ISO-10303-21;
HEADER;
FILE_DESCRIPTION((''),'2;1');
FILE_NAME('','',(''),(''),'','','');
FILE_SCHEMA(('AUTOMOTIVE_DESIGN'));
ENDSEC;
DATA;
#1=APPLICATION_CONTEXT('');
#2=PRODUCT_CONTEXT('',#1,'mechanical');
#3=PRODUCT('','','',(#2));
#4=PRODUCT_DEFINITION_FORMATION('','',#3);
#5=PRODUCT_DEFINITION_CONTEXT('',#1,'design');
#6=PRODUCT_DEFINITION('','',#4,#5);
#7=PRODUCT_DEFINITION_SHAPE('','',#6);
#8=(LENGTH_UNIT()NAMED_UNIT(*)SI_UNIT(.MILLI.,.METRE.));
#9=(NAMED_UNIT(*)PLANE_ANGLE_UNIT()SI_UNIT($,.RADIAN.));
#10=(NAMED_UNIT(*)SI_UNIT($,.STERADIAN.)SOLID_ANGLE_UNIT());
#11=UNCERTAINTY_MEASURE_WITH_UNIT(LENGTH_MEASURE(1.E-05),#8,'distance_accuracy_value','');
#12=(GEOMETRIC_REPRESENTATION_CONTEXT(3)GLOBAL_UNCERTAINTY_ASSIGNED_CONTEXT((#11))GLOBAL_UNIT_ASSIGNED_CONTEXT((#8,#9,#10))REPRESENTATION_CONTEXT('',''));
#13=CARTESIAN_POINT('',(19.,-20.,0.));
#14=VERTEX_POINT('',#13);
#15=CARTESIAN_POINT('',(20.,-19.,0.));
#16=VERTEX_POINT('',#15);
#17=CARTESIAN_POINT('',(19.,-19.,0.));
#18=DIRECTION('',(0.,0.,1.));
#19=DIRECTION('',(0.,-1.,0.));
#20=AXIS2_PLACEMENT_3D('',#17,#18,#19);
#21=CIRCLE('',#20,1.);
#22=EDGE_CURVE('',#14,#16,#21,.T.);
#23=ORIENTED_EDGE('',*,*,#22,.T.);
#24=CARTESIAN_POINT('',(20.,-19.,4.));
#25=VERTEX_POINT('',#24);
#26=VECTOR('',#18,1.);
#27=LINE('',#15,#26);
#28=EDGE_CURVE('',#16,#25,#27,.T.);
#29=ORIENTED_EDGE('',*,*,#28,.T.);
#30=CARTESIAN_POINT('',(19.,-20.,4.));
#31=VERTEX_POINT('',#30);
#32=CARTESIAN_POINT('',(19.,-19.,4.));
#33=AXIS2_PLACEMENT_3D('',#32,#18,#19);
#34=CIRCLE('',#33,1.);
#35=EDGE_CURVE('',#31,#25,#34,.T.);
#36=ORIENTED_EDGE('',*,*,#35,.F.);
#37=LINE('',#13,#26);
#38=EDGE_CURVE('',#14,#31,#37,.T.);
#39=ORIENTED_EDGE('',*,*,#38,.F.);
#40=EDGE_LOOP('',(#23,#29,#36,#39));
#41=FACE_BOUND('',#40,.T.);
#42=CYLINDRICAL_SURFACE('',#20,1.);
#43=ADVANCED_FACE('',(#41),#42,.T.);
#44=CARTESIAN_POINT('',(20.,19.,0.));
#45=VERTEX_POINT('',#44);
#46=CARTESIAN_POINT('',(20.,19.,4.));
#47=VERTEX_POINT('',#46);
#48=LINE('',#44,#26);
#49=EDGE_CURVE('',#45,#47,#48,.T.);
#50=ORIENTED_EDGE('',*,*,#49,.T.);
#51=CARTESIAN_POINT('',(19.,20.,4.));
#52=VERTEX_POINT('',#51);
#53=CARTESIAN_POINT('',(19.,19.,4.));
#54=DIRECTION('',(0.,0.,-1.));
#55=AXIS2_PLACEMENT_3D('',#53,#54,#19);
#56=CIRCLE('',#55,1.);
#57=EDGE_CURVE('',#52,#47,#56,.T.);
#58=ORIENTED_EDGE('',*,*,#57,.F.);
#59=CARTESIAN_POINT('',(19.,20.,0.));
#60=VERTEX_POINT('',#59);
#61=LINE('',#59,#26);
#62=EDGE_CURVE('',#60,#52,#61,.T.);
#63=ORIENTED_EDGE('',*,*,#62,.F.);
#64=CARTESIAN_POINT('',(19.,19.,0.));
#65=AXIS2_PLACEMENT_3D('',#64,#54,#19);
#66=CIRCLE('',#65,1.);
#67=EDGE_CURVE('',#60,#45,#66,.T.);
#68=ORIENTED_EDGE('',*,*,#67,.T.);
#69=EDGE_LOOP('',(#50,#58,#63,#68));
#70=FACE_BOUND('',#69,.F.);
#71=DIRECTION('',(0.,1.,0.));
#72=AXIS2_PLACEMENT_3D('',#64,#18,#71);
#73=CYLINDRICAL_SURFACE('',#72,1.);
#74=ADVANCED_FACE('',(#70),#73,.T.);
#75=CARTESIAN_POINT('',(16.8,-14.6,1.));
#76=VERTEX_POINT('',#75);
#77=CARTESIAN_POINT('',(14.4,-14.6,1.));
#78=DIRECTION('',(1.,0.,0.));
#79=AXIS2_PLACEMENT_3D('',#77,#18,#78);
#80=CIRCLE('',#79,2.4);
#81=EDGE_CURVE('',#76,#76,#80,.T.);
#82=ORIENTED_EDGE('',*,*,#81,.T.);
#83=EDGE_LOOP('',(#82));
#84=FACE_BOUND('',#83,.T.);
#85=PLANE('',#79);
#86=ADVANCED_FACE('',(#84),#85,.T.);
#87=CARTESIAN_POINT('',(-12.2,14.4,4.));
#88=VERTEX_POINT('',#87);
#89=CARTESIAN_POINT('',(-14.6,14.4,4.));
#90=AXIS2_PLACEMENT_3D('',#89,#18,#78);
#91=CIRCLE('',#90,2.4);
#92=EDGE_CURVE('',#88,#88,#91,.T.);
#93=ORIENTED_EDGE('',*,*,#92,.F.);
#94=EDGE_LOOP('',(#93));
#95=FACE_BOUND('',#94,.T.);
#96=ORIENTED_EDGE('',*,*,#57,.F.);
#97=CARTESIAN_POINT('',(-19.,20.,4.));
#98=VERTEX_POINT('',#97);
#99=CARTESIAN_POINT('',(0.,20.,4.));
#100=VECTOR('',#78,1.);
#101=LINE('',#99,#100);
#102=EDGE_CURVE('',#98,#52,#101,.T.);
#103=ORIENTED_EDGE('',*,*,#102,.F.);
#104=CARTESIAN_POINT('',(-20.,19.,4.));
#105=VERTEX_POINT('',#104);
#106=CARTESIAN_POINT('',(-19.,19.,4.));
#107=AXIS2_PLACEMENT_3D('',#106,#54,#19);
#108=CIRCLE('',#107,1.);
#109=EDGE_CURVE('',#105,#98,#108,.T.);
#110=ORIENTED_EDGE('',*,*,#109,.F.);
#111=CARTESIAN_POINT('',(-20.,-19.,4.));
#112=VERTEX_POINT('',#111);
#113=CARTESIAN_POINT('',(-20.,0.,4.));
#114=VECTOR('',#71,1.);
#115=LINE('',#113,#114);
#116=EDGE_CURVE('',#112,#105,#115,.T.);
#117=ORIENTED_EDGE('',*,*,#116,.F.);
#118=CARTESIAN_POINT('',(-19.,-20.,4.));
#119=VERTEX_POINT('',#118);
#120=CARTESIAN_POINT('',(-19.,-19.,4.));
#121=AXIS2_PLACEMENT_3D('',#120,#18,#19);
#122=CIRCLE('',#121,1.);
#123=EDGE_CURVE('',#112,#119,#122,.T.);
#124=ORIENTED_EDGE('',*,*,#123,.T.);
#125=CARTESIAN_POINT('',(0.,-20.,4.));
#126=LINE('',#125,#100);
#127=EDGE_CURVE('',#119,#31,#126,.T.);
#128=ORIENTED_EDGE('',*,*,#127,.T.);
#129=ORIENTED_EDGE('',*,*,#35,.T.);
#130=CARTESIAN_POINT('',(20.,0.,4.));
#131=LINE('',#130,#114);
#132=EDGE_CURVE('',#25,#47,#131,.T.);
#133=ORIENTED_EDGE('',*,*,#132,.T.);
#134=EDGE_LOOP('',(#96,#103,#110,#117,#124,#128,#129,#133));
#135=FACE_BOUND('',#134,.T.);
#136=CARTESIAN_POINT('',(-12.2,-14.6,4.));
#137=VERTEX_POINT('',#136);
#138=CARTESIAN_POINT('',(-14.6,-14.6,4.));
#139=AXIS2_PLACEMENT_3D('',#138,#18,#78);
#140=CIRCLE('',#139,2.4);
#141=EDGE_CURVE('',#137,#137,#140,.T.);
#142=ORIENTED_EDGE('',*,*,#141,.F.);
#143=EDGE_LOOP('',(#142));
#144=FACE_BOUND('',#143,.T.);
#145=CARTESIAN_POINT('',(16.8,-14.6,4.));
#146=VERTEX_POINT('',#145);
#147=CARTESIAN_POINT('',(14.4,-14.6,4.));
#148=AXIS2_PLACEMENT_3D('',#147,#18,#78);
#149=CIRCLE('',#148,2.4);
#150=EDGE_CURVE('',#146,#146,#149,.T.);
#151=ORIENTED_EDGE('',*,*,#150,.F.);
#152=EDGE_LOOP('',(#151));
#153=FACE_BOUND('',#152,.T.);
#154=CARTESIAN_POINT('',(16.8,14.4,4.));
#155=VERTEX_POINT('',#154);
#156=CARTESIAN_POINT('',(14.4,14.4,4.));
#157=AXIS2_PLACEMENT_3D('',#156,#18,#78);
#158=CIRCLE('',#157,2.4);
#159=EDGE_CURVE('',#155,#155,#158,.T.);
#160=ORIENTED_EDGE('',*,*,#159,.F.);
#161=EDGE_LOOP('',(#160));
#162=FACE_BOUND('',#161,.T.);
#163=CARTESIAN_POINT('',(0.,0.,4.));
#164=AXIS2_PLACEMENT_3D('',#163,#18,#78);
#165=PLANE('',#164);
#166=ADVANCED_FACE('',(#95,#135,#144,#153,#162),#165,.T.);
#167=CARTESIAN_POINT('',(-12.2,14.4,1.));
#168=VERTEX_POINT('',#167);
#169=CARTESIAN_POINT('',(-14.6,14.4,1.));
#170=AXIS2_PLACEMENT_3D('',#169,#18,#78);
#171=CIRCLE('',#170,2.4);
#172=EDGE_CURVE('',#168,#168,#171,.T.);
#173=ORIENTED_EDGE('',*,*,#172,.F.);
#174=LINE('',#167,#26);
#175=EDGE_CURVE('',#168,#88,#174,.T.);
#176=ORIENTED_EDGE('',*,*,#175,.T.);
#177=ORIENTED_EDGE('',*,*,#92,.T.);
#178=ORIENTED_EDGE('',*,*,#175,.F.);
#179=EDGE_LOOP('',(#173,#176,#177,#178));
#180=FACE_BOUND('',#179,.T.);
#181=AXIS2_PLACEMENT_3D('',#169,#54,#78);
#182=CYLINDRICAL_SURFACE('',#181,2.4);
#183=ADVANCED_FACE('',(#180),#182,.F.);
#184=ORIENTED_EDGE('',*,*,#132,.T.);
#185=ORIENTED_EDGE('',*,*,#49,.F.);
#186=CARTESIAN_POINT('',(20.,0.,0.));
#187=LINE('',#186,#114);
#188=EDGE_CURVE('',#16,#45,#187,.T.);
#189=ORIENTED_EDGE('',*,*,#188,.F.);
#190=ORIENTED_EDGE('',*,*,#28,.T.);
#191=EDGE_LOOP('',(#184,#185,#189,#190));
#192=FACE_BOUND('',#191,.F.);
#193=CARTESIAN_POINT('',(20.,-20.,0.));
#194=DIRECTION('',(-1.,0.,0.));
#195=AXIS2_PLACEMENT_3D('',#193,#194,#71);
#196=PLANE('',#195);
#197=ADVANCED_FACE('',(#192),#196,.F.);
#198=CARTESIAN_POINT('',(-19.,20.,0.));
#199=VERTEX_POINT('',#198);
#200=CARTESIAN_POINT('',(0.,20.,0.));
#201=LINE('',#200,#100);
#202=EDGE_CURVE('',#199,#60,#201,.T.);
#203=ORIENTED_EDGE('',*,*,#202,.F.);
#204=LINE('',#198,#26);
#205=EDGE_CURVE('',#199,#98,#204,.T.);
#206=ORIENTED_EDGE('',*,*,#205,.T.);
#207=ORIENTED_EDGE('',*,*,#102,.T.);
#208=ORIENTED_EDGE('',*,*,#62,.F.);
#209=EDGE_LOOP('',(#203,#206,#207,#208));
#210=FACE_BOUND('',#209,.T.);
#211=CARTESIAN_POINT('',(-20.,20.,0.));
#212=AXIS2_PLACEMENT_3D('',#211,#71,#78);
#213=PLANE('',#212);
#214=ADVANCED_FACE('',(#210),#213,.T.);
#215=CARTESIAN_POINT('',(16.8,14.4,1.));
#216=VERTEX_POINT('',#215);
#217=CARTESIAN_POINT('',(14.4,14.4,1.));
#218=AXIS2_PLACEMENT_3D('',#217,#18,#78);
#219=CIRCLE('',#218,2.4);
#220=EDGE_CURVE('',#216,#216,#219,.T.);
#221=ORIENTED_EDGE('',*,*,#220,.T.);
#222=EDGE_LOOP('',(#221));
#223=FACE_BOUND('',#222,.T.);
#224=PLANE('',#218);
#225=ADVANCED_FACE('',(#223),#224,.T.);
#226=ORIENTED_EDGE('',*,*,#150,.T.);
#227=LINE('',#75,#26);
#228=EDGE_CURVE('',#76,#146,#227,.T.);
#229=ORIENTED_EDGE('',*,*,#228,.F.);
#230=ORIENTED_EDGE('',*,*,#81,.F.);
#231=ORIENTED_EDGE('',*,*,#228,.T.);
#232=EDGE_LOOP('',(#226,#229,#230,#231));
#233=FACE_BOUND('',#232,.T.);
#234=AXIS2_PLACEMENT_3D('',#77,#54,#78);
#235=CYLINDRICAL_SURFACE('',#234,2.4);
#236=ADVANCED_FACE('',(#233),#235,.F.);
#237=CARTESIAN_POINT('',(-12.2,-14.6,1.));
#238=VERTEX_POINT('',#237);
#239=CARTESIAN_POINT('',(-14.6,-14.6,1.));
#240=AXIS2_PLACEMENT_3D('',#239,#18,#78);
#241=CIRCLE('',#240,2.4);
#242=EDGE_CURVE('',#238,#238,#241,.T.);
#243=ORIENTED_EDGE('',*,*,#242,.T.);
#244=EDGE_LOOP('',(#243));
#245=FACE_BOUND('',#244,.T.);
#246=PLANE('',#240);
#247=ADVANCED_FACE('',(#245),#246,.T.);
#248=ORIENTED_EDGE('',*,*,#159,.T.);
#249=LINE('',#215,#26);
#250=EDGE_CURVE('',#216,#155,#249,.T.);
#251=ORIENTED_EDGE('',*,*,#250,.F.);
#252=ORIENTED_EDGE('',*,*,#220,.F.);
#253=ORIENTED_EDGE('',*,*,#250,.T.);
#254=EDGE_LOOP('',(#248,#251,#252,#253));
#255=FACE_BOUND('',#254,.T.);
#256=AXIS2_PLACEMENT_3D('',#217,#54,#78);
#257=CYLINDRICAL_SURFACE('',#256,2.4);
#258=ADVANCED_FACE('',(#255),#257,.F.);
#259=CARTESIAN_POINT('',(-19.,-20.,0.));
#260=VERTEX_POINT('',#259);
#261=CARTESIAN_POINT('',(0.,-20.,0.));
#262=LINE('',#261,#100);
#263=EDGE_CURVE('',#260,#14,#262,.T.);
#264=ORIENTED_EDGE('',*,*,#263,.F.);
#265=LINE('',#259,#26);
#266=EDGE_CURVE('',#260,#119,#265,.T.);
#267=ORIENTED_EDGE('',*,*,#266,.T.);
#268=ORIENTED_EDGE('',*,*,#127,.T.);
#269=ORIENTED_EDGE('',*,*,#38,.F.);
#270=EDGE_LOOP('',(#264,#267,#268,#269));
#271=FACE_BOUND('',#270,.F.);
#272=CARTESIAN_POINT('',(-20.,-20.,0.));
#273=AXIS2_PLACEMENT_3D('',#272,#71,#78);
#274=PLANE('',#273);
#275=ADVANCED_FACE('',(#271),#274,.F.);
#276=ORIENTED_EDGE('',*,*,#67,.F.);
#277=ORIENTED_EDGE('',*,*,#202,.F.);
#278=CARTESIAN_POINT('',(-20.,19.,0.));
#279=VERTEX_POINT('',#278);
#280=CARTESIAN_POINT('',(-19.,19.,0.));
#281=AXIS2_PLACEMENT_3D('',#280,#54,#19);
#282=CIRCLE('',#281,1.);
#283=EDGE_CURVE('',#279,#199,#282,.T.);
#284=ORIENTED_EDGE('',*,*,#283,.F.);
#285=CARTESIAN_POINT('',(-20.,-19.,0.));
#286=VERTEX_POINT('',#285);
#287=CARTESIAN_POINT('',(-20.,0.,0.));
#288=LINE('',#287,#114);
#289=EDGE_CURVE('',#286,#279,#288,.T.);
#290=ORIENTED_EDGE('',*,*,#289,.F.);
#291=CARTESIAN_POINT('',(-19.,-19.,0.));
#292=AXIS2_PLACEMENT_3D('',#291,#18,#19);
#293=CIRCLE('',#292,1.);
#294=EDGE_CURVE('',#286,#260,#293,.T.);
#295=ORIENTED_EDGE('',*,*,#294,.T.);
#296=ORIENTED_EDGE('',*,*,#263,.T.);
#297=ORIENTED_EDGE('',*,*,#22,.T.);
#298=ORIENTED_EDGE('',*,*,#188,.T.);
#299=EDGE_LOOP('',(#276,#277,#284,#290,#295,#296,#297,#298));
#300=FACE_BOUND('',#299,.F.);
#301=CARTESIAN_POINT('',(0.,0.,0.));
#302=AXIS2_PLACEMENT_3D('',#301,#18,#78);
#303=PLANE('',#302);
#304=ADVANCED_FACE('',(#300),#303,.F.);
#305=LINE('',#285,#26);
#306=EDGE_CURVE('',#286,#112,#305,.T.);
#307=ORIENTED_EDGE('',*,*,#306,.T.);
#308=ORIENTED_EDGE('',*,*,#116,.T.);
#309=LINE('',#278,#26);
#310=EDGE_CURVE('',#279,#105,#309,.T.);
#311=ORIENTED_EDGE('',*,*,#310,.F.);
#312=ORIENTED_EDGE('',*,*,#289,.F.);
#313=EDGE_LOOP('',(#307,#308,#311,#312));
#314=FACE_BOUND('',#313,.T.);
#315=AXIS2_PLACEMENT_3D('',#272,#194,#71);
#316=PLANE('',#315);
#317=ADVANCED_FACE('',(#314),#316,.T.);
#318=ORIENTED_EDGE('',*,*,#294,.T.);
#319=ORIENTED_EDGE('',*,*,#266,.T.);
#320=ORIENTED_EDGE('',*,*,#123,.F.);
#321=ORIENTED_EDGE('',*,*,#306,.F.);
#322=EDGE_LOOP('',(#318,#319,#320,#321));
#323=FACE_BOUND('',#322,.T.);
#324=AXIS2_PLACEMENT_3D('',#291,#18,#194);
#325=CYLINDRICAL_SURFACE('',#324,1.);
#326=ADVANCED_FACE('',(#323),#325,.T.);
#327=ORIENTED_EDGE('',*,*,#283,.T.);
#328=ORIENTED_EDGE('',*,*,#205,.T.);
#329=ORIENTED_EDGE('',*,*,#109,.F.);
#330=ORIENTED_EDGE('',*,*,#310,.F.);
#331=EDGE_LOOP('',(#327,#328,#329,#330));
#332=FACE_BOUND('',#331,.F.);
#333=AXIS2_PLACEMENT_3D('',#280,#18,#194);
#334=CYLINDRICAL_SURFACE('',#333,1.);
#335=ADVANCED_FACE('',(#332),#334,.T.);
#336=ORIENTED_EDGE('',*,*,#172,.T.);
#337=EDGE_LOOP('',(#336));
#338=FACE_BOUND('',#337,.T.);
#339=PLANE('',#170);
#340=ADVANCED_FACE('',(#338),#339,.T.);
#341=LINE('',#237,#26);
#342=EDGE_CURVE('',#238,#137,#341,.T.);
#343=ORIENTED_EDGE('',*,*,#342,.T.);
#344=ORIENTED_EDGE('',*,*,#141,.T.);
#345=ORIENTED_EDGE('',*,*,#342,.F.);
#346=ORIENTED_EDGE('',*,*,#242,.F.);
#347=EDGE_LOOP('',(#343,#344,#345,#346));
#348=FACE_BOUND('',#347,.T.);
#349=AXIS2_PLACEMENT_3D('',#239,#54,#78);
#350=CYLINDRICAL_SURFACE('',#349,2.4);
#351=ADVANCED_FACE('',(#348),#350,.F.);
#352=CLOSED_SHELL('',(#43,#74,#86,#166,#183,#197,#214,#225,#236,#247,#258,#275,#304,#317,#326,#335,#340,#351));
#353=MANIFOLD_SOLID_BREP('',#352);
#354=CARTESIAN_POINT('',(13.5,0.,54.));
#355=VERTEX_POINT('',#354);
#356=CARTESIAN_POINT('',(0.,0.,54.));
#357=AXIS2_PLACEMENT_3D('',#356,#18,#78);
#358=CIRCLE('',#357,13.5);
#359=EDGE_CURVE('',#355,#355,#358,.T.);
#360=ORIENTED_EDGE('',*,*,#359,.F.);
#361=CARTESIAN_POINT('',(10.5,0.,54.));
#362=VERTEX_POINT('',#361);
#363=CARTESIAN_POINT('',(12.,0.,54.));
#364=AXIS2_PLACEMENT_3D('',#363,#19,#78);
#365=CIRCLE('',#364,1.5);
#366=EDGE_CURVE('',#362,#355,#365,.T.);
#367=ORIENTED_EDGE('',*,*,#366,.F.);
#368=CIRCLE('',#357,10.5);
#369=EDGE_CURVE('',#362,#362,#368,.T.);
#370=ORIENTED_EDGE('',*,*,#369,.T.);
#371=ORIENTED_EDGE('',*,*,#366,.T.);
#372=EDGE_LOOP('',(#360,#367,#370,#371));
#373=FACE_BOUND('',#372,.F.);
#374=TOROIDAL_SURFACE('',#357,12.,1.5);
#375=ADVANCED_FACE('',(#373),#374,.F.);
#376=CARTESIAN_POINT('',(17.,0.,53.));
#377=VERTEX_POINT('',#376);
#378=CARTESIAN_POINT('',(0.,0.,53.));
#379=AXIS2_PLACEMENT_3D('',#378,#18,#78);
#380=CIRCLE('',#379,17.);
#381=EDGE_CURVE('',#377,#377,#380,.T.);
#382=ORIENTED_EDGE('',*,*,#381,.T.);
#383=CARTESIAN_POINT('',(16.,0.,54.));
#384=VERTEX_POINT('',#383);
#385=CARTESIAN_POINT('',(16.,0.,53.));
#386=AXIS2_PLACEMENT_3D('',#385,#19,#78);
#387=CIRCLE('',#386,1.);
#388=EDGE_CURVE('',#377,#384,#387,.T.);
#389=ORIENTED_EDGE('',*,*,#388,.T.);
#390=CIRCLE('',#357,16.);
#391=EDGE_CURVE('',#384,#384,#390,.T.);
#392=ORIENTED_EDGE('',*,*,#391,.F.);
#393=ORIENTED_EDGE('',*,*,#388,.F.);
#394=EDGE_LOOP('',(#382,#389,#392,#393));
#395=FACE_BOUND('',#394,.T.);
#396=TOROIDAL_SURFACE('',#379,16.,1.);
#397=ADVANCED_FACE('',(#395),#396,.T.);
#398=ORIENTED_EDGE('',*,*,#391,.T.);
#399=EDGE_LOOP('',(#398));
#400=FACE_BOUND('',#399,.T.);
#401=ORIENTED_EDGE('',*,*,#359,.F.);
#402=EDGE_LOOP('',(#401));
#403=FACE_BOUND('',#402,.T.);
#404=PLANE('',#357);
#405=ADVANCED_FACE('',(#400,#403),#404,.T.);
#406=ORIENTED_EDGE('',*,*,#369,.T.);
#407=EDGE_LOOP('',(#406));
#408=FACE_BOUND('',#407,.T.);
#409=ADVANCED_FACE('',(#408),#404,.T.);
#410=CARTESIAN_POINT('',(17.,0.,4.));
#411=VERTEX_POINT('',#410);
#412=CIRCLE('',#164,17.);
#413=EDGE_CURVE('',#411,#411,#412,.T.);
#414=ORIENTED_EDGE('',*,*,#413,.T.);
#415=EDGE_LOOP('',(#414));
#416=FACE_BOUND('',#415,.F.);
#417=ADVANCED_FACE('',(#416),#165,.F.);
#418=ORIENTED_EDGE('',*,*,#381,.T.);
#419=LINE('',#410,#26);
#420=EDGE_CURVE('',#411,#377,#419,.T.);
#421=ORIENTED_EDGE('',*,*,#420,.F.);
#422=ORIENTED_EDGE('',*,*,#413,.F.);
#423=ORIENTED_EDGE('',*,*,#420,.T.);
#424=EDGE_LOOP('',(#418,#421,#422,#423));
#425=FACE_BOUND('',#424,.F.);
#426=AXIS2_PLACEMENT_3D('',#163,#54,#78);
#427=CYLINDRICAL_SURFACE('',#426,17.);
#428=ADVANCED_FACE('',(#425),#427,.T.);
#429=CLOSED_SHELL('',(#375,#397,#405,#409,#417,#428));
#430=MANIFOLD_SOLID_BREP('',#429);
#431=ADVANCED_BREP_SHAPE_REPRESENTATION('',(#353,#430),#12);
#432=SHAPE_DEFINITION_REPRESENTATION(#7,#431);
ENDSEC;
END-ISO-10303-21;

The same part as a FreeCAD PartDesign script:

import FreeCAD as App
import Part
import Sketcher


def edges_at(feature, points):
    """Names of the edges that pass closest to the given points."""
    edges = feature.Shape.Edges
    near = lambda p: min(range(len(edges)), key=lambda i: edges[i].distToShape(Part.Vertex(*p))[0])
    return sorted({f"Edge{near(p) + 1}" for p in points})


def add_polygon(sketch, points):
    """Adds a closed chain of lines whose ends are joined by coincident constraints."""
    first, n = sketch.GeometryCount, len(points)
    for a, b in zip(points, points[1:] + points[:1]):
        sketch.addGeometry(Part.LineSegment(App.Vector(*a, 0), App.Vector(*b, 0)), False)
    for i in range(n):
        sketch.addConstraint(Sketcher.Constraint("Coincident", first + i, 2, first + (i + 1) % n, 1))

doc = App.newDocument("Part")
body = doc.addObject("PartDesign::Body", "Body")

# Sketch on XZ plane
sketch1 = body.newObject("Sketcher::SketchObject", "Sketch")
sketch1.AttachmentSupport = (doc.getObject("XZ_Plane"), [""])
sketch1.MapMode = "FlatFace"
sketch1.addGeometry(Part.Circle(App.Vector(12, 54, 0), App.Vector(0, 0, 1), 1.5), False)
sketch1.addConstraint([
    Sketcher.Constraint("Diameter", 0, 3.0),
    Sketcher.Constraint("DistanceX", -1, 1, 0, 3, 12.0),
    Sketcher.Constraint("DistanceY", -1, 1, 0, 3, 54.0),
])
revolution = body.newObject("PartDesign::Revolution", "Revolution")
revolution.Profile = sketch1
revolution.ReferenceAxis = (sketch1, ["V_Axis"])
revolution.Angle = 360
body2 = doc.addObject("PartDesign::Body", "Body001")

# Sketch on XY plane
sketch2 = body2.newObject("Sketcher::SketchObject", "Sketch001")
sketch2.AttachmentSupport = (doc.getObject("XY_Plane001"), [""])
sketch2.MapMode = "FlatFace"
sketch2.AttachmentOffset = App.Placement(App.Vector(0, 0, 4), App.Rotation())
sketch2.addGeometry(Part.Circle(App.Vector(0, 0, 0), App.Vector(0, 0, 1), 17), False)
sketch2.addConstraint([
    Sketcher.Constraint("Coincident", 0, 3, -1, 1),
    Sketcher.Constraint("Diameter", 0, 34.0),
])
pad1 = body2.newObject("PartDesign::Pad", "Pad")
pad1.Profile = sketch2
pad1.Length = 50
doc.recompute()

boolean = body2.newObject("PartDesign::Boolean", "Boolean")
boolean.Type = "Cut"
boolean.addObjects([body])
doc.recompute()

fillet = body2.newObject("PartDesign::Fillet", "Fillet")
fillet.Base = (boolean, edges_at(boolean, [(-17, 0, 54)]))
fillet.Radius = 1
body3 = doc.addObject("PartDesign::Body", "Body002")

# Sketch on XY plane
sketch3 = body3.newObject("Sketcher::SketchObject", "Sketch002")
sketch3.AttachmentSupport = (doc.getObject("XY_Plane002"), [""])
sketch3.MapMode = "FlatFace"
sketch3.AttachmentOffset = App.Placement(App.Vector(0, 0, 1), App.Rotation())
sketch3.addGeometry(Part.Circle(App.Vector(34.4, 5.4, 0), App.Vector(0, 0, 1), 2.4), False)
sketch3.addConstraint([
    Sketcher.Constraint("Diameter", 0, 4.8),
    Sketcher.Constraint("DistanceX", -1, 1, 0, 3, 34.4),
    Sketcher.Constraint("DistanceY", -1, 1, 0, 3, 5.4),
])
pad2 = body3.newObject("PartDesign::Pad", "Pad001")
pad2.Profile = sketch3
pad2.Length = 3
body4 = doc.addObject("PartDesign::Body", "Body003")

# Sketch on XY plane
sketch4 = body4.newObject("Sketcher::SketchObject", "Sketch003")
sketch4.AttachmentSupport = (doc.getObject("XY_Plane003"), [""])
sketch4.MapMode = "FlatFace"
sketch4.AttachmentOffset = App.Placement(App.Vector(0, 0, 1), App.Rotation())
sketch4.addGeometry(Part.Circle(App.Vector(34.4, 34.4, 0), App.Vector(0, 0, 1), 2.4), False)
sketch4.addConstraint([
    Sketcher.Constraint("Diameter", 0, 4.8),
    Sketcher.Constraint("DistanceX", -1, 1, 0, 3, 34.4),
    Sketcher.Constraint("DistanceY", -1, 1, 0, 3, 34.4),
])
pad3 = body4.newObject("PartDesign::Pad", "Pad002")
pad3.Profile = sketch4
pad3.Length = 3
body5 = doc.addObject("PartDesign::Body", "Body004")

# Sketch on XY plane
sketch5 = body5.newObject("Sketcher::SketchObject", "Sketch004")
sketch5.AttachmentSupport = (doc.getObject("XY_Plane004"), [""])
sketch5.MapMode = "FlatFace"
sketch5.AttachmentOffset = App.Placement(App.Vector(0, 0, 1), App.Rotation())
sketch5.addGeometry(Part.Circle(App.Vector(5.4, 34.4, 0), App.Vector(0, 0, 1), 2.4), False)
sketch5.addConstraint([
    Sketcher.Constraint("Diameter", 0, 4.8),
    Sketcher.Constraint("DistanceX", -1, 1, 0, 3, 5.4),
    Sketcher.Constraint("DistanceY", -1, 1, 0, 3, 34.4),
])
pad4 = body5.newObject("PartDesign::Pad", "Pad003")
pad4.Profile = sketch5
pad4.Length = 3
body6 = doc.addObject("PartDesign::Body", "Body005")
body6.AllowCompound = True

# Sketch on XY plane
sketch6 = body6.newObject("Sketcher::SketchObject", "Sketch005")
sketch6.AttachmentSupport = (doc.getObject("XY_Plane005"), [""])
sketch6.MapMode = "FlatFace"
sketch6.AttachmentOffset = App.Placement(App.Vector(0, 0, 1), App.Rotation())
sketch6.addGeometry(Part.Circle(App.Vector(5.4, 5.4, 0), App.Vector(0, 0, 1), 2.4), False)
sketch6.addConstraint([
    Sketcher.Constraint("Diameter", 0, 4.8),
    Sketcher.Constraint("DistanceX", -1, 1, 0, 3, 5.4),
    Sketcher.Constraint("DistanceY", -1, 1, 0, 3, 5.4),
])
pad5 = body6.newObject("PartDesign::Pad", "Pad004")
pad5.Profile = sketch6
pad5.Length = 3
doc.recompute()

boolean2 = body6.newObject("PartDesign::Boolean", "Boolean001")
boolean2.Type = "Fuse"
boolean2.addObjects([body3])
doc.recompute()

boolean3 = body6.newObject("PartDesign::Boolean", "Boolean002")
boolean3.Type = "Fuse"
boolean3.addObjects([body4])
doc.recompute()

boolean4 = body6.newObject("PartDesign::Boolean", "Boolean003")
boolean4.Type = "Fuse"
boolean4.addObjects([body5])
body7 = doc.addObject("PartDesign::Body", "Body006")

# Sketch on XY plane
sketch7 = body7.newObject("Sketcher::SketchObject", "Sketch006")
sketch7.AttachmentSupport = (doc.getObject("XY_Plane006"), [""])
sketch7.MapMode = "FlatFace"
add_polygon(sketch7, [(0, 40), (0, 0), (40, 0), (40, 40)])  # lines 0-3
sketch7.addConstraint([
    Sketcher.Constraint("Vertical", 0),
    Sketcher.Constraint("Horizontal", 1),
    Sketcher.Constraint("Vertical", 2),
    Sketcher.Constraint("Horizontal", 3),
    Sketcher.Constraint("Coincident", 0, 2, -1, 1),
    Sketcher.Constraint("Equal", 3, 0),
    Sketcher.Constraint("DistanceX", 1, 1, 1, 2, 40.0),
])
pad6 = body7.newObject("PartDesign::Pad", "Pad005")
pad6.Profile = sketch7
pad6.Length = 4
doc.recompute()

boolean5 = body7.newObject("PartDesign::Boolean", "Boolean004")
boolean5.Type = "Cut"
boolean5.addObjects([body6])
body8 = doc.addObject("PartDesign::Body", "Body007")
doc.recompute()

body7.Placement = App.Placement(App.Vector(-20, -20, 0), App.Rotation(App.Vector(0, 0, 1), 0))
boolean6 = body8.newObject("PartDesign::Boolean", "Boolean005")
boolean6.Type = "Fuse"
boolean6.addObjects([body7])
doc.recompute()

fillet2 = body8.newObject("PartDesign::Fillet", "Fillet001")
fillet2.Base = (boolean6, edges_at(boolean6, [
    (-20, -20, 2),
    (-20, 20, 2),
    (20, -20, 2),
    (20, 20, 2),
]))
fillet2.Radius = 1

doc.recompute()
